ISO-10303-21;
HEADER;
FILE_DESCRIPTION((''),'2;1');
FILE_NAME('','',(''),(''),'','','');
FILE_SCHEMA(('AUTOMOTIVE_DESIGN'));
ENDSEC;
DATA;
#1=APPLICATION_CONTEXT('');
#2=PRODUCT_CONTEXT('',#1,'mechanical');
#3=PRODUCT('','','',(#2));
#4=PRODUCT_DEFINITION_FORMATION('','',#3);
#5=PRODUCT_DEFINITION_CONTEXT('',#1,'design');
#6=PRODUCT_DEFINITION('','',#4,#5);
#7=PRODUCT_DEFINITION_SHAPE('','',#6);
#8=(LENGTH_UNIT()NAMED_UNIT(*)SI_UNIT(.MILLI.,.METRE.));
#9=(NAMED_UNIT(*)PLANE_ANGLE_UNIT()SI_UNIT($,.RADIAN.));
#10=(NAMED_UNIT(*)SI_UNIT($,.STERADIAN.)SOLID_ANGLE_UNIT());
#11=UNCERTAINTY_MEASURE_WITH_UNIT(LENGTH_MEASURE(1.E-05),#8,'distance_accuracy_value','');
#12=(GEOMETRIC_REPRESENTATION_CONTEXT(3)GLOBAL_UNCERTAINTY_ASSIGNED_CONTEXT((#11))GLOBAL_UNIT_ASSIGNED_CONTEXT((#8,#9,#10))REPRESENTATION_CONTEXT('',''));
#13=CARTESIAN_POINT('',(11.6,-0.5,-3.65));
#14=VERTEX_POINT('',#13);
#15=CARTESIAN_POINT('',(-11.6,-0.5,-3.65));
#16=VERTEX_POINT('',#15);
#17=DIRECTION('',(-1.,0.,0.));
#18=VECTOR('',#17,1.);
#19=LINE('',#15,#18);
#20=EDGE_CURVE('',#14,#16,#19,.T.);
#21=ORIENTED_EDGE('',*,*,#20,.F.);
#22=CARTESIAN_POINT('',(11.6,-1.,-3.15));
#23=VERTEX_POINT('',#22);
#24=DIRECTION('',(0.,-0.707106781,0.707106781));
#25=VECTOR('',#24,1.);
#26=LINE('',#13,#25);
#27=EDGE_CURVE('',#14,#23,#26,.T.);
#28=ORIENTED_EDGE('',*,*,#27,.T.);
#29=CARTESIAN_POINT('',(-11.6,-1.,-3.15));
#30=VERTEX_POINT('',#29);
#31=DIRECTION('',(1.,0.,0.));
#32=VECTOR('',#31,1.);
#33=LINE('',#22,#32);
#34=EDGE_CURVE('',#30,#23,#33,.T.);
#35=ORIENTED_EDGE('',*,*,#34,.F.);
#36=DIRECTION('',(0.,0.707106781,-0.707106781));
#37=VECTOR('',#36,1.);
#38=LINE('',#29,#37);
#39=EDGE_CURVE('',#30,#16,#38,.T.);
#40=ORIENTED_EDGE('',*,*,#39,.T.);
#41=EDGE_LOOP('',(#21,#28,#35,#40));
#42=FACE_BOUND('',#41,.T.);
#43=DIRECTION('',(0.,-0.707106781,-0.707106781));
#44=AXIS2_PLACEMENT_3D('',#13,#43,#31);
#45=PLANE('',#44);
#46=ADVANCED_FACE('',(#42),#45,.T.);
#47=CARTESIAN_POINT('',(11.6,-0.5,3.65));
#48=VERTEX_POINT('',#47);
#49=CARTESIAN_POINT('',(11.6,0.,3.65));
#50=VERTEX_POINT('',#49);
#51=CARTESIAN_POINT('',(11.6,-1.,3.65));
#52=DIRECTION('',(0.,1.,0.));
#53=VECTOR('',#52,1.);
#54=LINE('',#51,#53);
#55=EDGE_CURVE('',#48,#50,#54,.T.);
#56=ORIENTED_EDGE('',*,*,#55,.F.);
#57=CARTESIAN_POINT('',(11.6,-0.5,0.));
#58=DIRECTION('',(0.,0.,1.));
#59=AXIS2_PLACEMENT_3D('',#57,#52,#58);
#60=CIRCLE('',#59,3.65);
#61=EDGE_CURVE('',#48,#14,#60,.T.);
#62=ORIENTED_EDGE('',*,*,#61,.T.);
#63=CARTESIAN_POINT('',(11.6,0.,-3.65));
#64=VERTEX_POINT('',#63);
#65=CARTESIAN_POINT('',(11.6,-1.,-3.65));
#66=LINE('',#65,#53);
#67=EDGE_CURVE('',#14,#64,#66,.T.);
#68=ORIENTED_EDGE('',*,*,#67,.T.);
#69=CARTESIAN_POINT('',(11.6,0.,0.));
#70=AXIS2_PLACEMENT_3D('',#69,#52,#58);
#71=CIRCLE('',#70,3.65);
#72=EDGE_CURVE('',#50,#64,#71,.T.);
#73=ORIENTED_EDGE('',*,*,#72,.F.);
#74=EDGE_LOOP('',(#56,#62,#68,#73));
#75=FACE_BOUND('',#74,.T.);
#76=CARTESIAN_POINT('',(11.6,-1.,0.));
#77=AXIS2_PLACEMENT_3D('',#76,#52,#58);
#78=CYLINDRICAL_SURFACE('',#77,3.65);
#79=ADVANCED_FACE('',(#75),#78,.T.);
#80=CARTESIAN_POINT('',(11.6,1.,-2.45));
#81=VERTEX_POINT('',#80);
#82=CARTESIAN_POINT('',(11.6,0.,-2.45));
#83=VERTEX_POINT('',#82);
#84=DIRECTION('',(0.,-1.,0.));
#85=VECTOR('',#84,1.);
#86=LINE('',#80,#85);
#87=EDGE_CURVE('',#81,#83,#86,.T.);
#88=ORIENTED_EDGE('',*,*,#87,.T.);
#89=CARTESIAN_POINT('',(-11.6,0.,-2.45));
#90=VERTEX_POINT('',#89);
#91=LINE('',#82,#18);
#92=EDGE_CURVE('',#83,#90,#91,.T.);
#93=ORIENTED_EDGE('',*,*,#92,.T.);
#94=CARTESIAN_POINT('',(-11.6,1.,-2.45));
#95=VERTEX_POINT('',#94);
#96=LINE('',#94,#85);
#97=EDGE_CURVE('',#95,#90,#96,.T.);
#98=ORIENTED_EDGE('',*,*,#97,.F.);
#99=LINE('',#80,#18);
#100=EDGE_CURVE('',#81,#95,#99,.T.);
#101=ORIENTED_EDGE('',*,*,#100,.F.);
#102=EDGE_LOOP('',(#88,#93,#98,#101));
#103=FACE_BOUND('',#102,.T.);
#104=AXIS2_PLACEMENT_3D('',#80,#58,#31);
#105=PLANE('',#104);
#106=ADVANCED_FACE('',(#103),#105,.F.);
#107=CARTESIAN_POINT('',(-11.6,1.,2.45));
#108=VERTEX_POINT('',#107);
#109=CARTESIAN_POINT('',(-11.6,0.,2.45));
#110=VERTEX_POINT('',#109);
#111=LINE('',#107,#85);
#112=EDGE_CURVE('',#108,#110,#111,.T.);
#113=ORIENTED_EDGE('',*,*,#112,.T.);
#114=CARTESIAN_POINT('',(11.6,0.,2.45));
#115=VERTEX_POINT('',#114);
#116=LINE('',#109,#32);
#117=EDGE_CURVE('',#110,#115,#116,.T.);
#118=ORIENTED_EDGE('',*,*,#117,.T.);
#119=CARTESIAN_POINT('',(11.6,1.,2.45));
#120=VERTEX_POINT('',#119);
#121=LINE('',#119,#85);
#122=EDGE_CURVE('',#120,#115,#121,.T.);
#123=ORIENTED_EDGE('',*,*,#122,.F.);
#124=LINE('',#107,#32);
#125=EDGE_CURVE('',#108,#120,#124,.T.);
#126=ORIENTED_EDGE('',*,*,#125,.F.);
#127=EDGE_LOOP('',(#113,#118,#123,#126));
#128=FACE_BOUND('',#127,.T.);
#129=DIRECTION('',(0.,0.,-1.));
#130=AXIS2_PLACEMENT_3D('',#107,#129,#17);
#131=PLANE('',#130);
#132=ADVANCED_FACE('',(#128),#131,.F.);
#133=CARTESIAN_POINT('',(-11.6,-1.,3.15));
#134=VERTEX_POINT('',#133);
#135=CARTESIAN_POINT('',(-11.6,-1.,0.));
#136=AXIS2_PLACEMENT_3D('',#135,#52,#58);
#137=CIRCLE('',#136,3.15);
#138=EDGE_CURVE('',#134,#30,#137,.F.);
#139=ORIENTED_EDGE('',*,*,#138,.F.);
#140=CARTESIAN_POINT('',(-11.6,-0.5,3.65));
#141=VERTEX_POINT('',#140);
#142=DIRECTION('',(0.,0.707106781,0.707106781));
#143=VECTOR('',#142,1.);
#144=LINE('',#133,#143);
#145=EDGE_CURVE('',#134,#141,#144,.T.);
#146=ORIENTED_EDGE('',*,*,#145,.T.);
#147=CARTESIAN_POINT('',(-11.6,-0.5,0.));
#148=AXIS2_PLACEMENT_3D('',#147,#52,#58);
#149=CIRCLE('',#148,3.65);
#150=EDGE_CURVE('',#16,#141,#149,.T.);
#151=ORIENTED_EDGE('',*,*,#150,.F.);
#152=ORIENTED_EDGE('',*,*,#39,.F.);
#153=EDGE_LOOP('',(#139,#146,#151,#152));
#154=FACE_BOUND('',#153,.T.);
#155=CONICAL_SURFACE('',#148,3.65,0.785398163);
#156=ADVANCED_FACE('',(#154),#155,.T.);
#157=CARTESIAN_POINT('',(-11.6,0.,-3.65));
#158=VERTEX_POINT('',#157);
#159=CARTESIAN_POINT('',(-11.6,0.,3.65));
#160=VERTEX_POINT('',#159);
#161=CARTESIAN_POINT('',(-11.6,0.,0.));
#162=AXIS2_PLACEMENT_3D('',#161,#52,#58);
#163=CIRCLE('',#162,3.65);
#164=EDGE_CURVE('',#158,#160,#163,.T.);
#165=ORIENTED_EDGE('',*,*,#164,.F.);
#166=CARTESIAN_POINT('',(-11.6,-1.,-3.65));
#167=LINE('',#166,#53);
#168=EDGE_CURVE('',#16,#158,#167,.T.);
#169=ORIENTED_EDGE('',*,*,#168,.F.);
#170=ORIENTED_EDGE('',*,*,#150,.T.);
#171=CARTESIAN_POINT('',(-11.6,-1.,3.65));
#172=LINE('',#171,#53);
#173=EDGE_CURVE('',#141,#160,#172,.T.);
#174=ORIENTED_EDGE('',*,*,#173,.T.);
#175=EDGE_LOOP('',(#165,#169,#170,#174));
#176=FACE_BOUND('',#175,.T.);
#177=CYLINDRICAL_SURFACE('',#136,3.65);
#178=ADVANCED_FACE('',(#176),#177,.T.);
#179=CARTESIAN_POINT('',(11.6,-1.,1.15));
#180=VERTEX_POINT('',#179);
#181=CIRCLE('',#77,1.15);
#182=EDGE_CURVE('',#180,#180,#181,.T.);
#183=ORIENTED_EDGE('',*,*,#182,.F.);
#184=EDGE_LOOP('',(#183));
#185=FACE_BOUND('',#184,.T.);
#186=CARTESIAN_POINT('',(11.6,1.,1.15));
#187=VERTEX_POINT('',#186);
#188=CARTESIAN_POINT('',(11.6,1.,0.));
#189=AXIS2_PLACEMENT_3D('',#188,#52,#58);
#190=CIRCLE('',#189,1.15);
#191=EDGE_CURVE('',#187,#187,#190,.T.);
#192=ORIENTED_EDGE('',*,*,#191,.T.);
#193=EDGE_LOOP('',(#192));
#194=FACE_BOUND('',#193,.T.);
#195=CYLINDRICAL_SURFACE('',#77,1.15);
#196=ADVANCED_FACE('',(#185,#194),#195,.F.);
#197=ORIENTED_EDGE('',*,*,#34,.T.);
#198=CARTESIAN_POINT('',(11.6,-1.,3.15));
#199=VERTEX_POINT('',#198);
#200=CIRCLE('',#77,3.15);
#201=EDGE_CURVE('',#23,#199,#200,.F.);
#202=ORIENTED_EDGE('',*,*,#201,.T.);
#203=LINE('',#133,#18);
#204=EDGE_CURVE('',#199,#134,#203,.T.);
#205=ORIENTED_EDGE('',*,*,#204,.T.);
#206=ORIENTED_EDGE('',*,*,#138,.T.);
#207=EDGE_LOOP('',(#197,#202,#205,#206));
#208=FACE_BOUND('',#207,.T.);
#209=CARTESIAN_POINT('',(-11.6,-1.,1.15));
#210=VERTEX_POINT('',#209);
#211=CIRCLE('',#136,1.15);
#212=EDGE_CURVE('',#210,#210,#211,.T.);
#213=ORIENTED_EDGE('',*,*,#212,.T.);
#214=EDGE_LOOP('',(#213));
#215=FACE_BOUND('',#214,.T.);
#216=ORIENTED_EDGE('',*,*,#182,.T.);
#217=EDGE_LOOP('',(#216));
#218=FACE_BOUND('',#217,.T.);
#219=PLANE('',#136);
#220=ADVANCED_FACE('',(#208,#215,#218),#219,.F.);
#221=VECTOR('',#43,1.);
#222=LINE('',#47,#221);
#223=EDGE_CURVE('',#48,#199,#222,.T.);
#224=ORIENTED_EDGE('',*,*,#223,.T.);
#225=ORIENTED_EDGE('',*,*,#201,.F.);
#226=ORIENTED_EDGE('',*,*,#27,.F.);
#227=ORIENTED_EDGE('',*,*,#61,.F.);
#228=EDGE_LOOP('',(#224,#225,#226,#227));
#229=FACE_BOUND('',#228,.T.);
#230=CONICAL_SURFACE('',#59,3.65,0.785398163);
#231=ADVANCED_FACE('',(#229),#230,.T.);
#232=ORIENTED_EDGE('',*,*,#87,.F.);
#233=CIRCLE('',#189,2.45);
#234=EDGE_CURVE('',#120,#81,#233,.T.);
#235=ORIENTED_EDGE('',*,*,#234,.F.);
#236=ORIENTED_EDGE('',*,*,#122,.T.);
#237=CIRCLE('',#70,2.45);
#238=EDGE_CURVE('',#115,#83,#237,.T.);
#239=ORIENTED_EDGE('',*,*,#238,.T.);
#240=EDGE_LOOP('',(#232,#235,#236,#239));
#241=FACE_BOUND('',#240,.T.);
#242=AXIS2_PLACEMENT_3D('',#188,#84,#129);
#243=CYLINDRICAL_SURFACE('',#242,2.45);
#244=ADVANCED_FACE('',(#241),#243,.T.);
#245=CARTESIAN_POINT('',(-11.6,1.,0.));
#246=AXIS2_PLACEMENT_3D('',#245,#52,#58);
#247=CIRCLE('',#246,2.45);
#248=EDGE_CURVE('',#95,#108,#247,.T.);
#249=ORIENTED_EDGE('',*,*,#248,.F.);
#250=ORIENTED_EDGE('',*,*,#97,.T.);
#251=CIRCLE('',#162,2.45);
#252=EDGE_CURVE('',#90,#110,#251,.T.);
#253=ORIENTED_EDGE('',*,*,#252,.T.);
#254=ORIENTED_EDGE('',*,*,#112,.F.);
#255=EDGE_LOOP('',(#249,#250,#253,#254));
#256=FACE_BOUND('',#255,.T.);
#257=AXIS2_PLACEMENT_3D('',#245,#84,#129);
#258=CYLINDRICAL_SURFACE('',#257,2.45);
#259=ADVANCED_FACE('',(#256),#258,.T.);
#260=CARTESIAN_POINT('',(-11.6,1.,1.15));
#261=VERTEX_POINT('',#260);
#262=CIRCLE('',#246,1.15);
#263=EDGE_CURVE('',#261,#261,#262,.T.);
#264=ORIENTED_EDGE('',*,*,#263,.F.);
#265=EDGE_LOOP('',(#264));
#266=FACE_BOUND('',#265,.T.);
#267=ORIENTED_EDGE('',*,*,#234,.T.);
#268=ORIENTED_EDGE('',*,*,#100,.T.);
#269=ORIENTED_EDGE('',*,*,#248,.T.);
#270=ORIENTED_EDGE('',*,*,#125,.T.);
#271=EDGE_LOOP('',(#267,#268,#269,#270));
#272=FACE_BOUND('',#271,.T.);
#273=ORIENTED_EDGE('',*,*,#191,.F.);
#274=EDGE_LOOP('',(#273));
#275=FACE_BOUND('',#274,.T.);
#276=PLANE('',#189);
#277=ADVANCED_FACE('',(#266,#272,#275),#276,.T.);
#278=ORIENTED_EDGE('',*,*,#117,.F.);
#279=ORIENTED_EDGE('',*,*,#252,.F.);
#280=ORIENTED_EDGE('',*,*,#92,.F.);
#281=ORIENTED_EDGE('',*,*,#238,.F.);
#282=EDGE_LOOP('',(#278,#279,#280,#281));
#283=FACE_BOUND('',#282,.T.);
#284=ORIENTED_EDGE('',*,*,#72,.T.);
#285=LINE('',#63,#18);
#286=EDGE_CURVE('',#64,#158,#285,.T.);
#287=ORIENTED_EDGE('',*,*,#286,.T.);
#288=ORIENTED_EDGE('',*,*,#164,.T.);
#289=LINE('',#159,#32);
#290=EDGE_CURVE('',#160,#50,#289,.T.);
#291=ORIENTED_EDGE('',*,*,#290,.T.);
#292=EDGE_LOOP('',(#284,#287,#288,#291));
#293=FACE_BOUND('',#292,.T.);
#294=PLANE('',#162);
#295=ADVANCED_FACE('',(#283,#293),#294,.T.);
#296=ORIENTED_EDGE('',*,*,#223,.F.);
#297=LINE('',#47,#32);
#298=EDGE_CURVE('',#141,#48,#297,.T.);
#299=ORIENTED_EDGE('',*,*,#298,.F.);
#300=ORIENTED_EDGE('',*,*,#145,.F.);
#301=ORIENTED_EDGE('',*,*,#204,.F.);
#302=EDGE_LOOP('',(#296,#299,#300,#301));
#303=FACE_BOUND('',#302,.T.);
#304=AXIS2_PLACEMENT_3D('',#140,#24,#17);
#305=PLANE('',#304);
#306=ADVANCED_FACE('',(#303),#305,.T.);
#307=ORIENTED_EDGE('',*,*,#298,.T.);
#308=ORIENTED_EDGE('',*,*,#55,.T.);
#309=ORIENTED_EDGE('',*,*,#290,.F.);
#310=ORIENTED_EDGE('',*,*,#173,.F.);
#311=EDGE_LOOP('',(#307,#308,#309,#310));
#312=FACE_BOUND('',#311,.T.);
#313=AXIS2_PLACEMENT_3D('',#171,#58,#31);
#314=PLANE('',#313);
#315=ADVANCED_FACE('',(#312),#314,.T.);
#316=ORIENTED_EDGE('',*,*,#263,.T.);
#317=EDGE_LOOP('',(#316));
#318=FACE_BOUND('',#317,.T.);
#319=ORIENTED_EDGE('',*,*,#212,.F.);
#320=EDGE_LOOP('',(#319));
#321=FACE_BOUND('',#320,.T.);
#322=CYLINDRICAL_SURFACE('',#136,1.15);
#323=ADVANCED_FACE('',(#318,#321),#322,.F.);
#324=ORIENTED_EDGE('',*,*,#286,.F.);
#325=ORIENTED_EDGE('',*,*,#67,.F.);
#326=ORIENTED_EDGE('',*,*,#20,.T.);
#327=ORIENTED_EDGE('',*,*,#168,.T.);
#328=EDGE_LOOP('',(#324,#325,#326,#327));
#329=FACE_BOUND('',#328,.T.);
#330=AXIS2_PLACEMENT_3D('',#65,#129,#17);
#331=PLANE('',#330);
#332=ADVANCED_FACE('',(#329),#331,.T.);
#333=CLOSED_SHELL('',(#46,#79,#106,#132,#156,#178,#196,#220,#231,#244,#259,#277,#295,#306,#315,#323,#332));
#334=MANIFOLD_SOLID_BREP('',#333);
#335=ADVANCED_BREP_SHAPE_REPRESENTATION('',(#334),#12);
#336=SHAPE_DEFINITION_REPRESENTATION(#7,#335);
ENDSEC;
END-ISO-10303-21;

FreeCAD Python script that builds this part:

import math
import FreeCAD as App
import Part
import Sketcher
from FreeCAD import Vector
Q = App.Units.Quantity


def edges_at(feature, points):
    """Names of the edges that pass closest to the given points."""
    edges = feature.Shape.Edges
    near = lambda p: min(range(len(edges)), key=lambda i: edges[i].distToShape(Part.Vertex(*p))[0])
    return sorted({f"Edge{near(p) + 1}" for p in points})

doc = App.newDocument("Part")
params = doc.addObject("Spreadsheet::Sheet", "Params")
for row, (alias, value) in enumerate([
    ("sketch1_radius", "3.65 mm"),
    ("sketch1_width", "23.2 mm"),
    ("pad1_length", "1 mm"),
    ("sketch2_radius", "2.45 mm"),
    ("sketch2_width", "23.2 mm"),
    ("pad2_length", "1 mm"),
    ("sketch3_diameter", "2.3 mm"),
    ("chamfer_size", "0.5 mm"),
], start=1):
    params.set(f"A{row}", alias)
    params.set(f"B{row}", "=" + value)
    params.setAlias(f"B{row}", alias)

body = doc.addObject("PartDesign::Body", "Body")

# Sketch on XZ plane
sketch1 = body.newObject("Sketcher::SketchObject", "Sketch")
sketch1.AttachmentSupport = (doc.getObject("XZ_Plane"), [""])
sketch1.MapMode = "FlatFace"
sketch1.addGeometry([
    Part.LineSegment(Vector(11.6, -3.6, 0), Vector(-11.6, -3.6, 0)),
    Part.ArcOfCircle(Part.Circle(Vector(-11.6, 0, 0), Vector(0, 0, 1), 3.6), math.radians(90), math.radians(270)),
    Part.LineSegment(Vector(-11.6, 3.6, 0), Vector(11.6, 3.6, 0)),
    Part.ArcOfCircle(Part.Circle(Vector(11.6, 0, 0), Vector(0, 0, 1), 3.6), math.radians(-90), math.radians(90)),
], False)
sketch1.addConstraint([
    Sketcher.Constraint("Tangent", 0, 2, 1, 2),
    Sketcher.Constraint("Tangent", 1, 1, 2, 1),
    Sketcher.Constraint("Tangent", 2, 2, 3, 2),
    Sketcher.Constraint("Tangent", 3, 1, 0, 1),
    Sketcher.Constraint("Horizontal", 0),
    Sketcher.Constraint("Horizontal", 2),
    Sketcher.Constraint("Symmetric", 1, 3, 3, 3, -1, 1),
    Sketcher.Constraint("Radius", 1, Q("3.65 mm")),
    Sketcher.Constraint("DistanceX", 0, 2, 0, 1, Q("23.2 mm")),
])
sketch1.setExpression("Constraints[7]", "Params.sketch1_radius")
sketch1.setExpression("Constraints[8]", "Params.sketch1_width")
pad1 = body.newObject("PartDesign::Pad", "Pad")
pad1.Profile = sketch1
pad1.setExpression("Length", "Params.pad1_length")

# Sketch on XZ plane
sketch2 = body.newObject("Sketcher::SketchObject", "Sketch001")
sketch2.AttachmentSupport = (doc.getObject("XZ_Plane"), [""])
sketch2.MapMode = "FlatFace"
sketch2.addGeometry([
    Part.LineSegment(Vector(-11.6, 2.5, 0), Vector(11.6, 2.5, 0)),
    Part.ArcOfCircle(Part.Circle(Vector(11.6, 0, 0), Vector(0, 0, 1), 2.5), math.radians(-90), math.radians(90)),
    Part.LineSegment(Vector(11.6, -2.5, 0), Vector(-11.6, -2.5, 0)),
    Part.ArcOfCircle(Part.Circle(Vector(-11.6, 0, 0), Vector(0, 0, 1), 2.5), math.radians(90), math.radians(270)),
], False)
sketch2.addConstraint([
    Sketcher.Constraint("Tangent", 0, 2, 1, 2),
    Sketcher.Constraint("Tangent", 1, 1, 2, 1),
    Sketcher.Constraint("Tangent", 2, 2, 3, 2),
    Sketcher.Constraint("Tangent", 3, 1, 0, 1),
    Sketcher.Constraint("Horizontal", 0),
    Sketcher.Constraint("Horizontal", 2),
    Sketcher.Constraint("Symmetric", 1, 3, 3, 3, -1, 1),
    Sketcher.Constraint("Radius", 1, Q("2.45 mm")),
    Sketcher.Constraint("DistanceX", 0, 1, 0, 2, Q("23.2 mm")),
])
sketch2.setExpression("Constraints[7]", "Params.sketch2_radius")
sketch2.setExpression("Constraints[8]", "Params.sketch2_width")
pad2 = body.newObject("PartDesign::Pad", "Pad001")
pad2.Profile = sketch2
pad2.setExpression("Length", "Params.pad2_length")
pad2.Reversed = True

# Sketch on XZ plane
sketch3 = body.newObject("Sketcher::SketchObject", "Sketch002")
sketch3.AttachmentSupport = (doc.getObject("XZ_Plane"), [""])
sketch3.MapMode = "FlatFace"
sketch3.AttachmentOffset = App.Placement(Vector(0, 0, -1), App.Rotation())
sketch3.addGeometry([
    Part.Circle(Vector(-11.6, 0, 0), Vector(0, 0, 1), 1.1),
    Part.Circle(Vector(11.6, 0, 0), Vector(0, 0, 1), 1.1),
], False)
sketch3.addConstraint([
    Sketcher.Constraint("Equal", 0, 1),
    Sketcher.Constraint("Symmetric", 0, 3, 1, 3, -1, 1),
    Sketcher.Constraint("PointOnObject", 0, 3, -1),
    Sketcher.Constraint("Diameter", 0, Q("2.3 mm")),
    Sketcher.Constraint("DistanceX", 0, 3, -1, 1, Q("11.6 mm")),
])
sketch3.setExpression("Constraints[3]", "Params.sketch3_diameter")
pocket1 = body.newObject("PartDesign::Pocket", "Pocket")
pocket1.Profile = sketch3
pocket1.Type = "ThroughAll"
pocket1.Reversed = True
doc.recompute()

chamfer = body.newObject("PartDesign::Chamfer", "Chamfer")
chamfer.Base = (pocket1, edges_at(pocket1, [
    (15.25, -1, 0),
    (0, -1, -3.65),
    (-15.25, -1, 0),
    (0, -1, 3.65),
]))
chamfer.setExpression("Size", "Params.chamfer_size")

doc.recompute()
